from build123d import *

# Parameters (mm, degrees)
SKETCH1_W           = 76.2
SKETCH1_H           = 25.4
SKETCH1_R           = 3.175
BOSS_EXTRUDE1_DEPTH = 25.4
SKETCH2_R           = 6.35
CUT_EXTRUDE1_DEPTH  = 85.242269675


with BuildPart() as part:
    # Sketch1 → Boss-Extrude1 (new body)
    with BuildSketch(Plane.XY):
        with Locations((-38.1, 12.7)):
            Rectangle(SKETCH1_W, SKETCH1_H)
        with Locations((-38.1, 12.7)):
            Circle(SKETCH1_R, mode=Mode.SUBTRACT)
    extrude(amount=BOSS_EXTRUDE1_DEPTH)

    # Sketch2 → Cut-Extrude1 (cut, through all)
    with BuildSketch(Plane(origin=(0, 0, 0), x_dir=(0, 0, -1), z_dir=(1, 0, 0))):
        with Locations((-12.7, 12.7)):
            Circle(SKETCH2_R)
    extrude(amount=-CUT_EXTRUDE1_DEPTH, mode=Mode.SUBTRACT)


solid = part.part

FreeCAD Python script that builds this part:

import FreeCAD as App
import Part
import Sketcher
Q = App.Units.Quantity

doc = App.newDocument("Part")
body = doc.addObject("PartDesign::Body", "Body")

# Sketch on XY plane
sketch1 = body.newObject("Sketcher::SketchObject", "Sketch")
sketch1.AttachmentSupport = (doc.getObject("XY_Plane"), [""])
sketch1.MapMode = "FlatFace"
sketch1.addGeometry([
    Part.LineSegment(App.Vector(-76.2, 25.4, 0), App.Vector(-76.2, 0, 0)),  # 0
    Part.LineSegment(App.Vector(-76.2, 0, 0), App.Vector(0, 0, 0)),  # 1
    Part.LineSegment(App.Vector(0, 0, 0), App.Vector(0, 25.4, 0)),  # 2
    Part.LineSegment(App.Vector(0, 25.4, 0), App.Vector(-76.2, 25.4, 0)),  # 3
    Part.Circle(App.Vector(-38.1, 12.7, 0), App.Vector(0, 0, 1), 3.2),  # 4
], False)
sketch1.addConstraint([
    Sketcher.Constraint("Coincident", 0, 2, 1, 1),
    Sketcher.Constraint("Coincident", 1, 2, 2, 1),
    Sketcher.Constraint("Coincident", 2, 2, 3, 1),
    Sketcher.Constraint("Coincident", 3, 2, 0, 1),
    Sketcher.Constraint("Vertical", 0),
    Sketcher.Constraint("Horizontal", 1),
    Sketcher.Constraint("Vertical", 2),
    Sketcher.Constraint("Horizontal", 3),
    Sketcher.Constraint("Coincident", 1, 2, -1, 1),
    Sketcher.Constraint("Diameter", 4, Q("0.25 in")),
    Sketcher.Constraint("DistanceX", 1, 1, 1, 2, Q("3 in")),
    Sketcher.Constraint("DistanceY", 0, 2, 0, 1, Q("1 in")),
    Sketcher.Constraint("DistanceX", 4, 3, -1, 1, Q("1.5 in")),
    Sketcher.Constraint("DistanceY", -1, 1, 4, 3, Q("0.5 in")),
])
pad1 = body.newObject("PartDesign::Pad", "Pad")
pad1.Profile = sketch1
pad1.Length = Q("1 in")

# Sketch on YZ plane
sketch2 = body.newObject("Sketcher::SketchObject", "Sketch001")
sketch2.AttachmentSupport = (doc.getObject("YZ_Plane"), [""])
sketch2.MapMode = "FlatFace"
sketch2.addGeometry(Part.Circle(App.Vector(13, 13, 0), App.Vector(0, 0, 1), 6), False)
sketch2.addConstraint([
    Sketcher.Constraint("Diameter", 0, Q("0.5 in")),
    Sketcher.Constraint("DistanceX", -1, 1, 0, 3, Q("0.5 in")),
    Sketcher.Constraint("DistanceY", -1, 1, 0, 3, Q("0.5 in")),
])
pocket1 = body.newObject("PartDesign::Pocket", "Pocket")
pocket1.Profile = sketch2
pocket1.Type = "ThroughAll"

doc.recompute()
